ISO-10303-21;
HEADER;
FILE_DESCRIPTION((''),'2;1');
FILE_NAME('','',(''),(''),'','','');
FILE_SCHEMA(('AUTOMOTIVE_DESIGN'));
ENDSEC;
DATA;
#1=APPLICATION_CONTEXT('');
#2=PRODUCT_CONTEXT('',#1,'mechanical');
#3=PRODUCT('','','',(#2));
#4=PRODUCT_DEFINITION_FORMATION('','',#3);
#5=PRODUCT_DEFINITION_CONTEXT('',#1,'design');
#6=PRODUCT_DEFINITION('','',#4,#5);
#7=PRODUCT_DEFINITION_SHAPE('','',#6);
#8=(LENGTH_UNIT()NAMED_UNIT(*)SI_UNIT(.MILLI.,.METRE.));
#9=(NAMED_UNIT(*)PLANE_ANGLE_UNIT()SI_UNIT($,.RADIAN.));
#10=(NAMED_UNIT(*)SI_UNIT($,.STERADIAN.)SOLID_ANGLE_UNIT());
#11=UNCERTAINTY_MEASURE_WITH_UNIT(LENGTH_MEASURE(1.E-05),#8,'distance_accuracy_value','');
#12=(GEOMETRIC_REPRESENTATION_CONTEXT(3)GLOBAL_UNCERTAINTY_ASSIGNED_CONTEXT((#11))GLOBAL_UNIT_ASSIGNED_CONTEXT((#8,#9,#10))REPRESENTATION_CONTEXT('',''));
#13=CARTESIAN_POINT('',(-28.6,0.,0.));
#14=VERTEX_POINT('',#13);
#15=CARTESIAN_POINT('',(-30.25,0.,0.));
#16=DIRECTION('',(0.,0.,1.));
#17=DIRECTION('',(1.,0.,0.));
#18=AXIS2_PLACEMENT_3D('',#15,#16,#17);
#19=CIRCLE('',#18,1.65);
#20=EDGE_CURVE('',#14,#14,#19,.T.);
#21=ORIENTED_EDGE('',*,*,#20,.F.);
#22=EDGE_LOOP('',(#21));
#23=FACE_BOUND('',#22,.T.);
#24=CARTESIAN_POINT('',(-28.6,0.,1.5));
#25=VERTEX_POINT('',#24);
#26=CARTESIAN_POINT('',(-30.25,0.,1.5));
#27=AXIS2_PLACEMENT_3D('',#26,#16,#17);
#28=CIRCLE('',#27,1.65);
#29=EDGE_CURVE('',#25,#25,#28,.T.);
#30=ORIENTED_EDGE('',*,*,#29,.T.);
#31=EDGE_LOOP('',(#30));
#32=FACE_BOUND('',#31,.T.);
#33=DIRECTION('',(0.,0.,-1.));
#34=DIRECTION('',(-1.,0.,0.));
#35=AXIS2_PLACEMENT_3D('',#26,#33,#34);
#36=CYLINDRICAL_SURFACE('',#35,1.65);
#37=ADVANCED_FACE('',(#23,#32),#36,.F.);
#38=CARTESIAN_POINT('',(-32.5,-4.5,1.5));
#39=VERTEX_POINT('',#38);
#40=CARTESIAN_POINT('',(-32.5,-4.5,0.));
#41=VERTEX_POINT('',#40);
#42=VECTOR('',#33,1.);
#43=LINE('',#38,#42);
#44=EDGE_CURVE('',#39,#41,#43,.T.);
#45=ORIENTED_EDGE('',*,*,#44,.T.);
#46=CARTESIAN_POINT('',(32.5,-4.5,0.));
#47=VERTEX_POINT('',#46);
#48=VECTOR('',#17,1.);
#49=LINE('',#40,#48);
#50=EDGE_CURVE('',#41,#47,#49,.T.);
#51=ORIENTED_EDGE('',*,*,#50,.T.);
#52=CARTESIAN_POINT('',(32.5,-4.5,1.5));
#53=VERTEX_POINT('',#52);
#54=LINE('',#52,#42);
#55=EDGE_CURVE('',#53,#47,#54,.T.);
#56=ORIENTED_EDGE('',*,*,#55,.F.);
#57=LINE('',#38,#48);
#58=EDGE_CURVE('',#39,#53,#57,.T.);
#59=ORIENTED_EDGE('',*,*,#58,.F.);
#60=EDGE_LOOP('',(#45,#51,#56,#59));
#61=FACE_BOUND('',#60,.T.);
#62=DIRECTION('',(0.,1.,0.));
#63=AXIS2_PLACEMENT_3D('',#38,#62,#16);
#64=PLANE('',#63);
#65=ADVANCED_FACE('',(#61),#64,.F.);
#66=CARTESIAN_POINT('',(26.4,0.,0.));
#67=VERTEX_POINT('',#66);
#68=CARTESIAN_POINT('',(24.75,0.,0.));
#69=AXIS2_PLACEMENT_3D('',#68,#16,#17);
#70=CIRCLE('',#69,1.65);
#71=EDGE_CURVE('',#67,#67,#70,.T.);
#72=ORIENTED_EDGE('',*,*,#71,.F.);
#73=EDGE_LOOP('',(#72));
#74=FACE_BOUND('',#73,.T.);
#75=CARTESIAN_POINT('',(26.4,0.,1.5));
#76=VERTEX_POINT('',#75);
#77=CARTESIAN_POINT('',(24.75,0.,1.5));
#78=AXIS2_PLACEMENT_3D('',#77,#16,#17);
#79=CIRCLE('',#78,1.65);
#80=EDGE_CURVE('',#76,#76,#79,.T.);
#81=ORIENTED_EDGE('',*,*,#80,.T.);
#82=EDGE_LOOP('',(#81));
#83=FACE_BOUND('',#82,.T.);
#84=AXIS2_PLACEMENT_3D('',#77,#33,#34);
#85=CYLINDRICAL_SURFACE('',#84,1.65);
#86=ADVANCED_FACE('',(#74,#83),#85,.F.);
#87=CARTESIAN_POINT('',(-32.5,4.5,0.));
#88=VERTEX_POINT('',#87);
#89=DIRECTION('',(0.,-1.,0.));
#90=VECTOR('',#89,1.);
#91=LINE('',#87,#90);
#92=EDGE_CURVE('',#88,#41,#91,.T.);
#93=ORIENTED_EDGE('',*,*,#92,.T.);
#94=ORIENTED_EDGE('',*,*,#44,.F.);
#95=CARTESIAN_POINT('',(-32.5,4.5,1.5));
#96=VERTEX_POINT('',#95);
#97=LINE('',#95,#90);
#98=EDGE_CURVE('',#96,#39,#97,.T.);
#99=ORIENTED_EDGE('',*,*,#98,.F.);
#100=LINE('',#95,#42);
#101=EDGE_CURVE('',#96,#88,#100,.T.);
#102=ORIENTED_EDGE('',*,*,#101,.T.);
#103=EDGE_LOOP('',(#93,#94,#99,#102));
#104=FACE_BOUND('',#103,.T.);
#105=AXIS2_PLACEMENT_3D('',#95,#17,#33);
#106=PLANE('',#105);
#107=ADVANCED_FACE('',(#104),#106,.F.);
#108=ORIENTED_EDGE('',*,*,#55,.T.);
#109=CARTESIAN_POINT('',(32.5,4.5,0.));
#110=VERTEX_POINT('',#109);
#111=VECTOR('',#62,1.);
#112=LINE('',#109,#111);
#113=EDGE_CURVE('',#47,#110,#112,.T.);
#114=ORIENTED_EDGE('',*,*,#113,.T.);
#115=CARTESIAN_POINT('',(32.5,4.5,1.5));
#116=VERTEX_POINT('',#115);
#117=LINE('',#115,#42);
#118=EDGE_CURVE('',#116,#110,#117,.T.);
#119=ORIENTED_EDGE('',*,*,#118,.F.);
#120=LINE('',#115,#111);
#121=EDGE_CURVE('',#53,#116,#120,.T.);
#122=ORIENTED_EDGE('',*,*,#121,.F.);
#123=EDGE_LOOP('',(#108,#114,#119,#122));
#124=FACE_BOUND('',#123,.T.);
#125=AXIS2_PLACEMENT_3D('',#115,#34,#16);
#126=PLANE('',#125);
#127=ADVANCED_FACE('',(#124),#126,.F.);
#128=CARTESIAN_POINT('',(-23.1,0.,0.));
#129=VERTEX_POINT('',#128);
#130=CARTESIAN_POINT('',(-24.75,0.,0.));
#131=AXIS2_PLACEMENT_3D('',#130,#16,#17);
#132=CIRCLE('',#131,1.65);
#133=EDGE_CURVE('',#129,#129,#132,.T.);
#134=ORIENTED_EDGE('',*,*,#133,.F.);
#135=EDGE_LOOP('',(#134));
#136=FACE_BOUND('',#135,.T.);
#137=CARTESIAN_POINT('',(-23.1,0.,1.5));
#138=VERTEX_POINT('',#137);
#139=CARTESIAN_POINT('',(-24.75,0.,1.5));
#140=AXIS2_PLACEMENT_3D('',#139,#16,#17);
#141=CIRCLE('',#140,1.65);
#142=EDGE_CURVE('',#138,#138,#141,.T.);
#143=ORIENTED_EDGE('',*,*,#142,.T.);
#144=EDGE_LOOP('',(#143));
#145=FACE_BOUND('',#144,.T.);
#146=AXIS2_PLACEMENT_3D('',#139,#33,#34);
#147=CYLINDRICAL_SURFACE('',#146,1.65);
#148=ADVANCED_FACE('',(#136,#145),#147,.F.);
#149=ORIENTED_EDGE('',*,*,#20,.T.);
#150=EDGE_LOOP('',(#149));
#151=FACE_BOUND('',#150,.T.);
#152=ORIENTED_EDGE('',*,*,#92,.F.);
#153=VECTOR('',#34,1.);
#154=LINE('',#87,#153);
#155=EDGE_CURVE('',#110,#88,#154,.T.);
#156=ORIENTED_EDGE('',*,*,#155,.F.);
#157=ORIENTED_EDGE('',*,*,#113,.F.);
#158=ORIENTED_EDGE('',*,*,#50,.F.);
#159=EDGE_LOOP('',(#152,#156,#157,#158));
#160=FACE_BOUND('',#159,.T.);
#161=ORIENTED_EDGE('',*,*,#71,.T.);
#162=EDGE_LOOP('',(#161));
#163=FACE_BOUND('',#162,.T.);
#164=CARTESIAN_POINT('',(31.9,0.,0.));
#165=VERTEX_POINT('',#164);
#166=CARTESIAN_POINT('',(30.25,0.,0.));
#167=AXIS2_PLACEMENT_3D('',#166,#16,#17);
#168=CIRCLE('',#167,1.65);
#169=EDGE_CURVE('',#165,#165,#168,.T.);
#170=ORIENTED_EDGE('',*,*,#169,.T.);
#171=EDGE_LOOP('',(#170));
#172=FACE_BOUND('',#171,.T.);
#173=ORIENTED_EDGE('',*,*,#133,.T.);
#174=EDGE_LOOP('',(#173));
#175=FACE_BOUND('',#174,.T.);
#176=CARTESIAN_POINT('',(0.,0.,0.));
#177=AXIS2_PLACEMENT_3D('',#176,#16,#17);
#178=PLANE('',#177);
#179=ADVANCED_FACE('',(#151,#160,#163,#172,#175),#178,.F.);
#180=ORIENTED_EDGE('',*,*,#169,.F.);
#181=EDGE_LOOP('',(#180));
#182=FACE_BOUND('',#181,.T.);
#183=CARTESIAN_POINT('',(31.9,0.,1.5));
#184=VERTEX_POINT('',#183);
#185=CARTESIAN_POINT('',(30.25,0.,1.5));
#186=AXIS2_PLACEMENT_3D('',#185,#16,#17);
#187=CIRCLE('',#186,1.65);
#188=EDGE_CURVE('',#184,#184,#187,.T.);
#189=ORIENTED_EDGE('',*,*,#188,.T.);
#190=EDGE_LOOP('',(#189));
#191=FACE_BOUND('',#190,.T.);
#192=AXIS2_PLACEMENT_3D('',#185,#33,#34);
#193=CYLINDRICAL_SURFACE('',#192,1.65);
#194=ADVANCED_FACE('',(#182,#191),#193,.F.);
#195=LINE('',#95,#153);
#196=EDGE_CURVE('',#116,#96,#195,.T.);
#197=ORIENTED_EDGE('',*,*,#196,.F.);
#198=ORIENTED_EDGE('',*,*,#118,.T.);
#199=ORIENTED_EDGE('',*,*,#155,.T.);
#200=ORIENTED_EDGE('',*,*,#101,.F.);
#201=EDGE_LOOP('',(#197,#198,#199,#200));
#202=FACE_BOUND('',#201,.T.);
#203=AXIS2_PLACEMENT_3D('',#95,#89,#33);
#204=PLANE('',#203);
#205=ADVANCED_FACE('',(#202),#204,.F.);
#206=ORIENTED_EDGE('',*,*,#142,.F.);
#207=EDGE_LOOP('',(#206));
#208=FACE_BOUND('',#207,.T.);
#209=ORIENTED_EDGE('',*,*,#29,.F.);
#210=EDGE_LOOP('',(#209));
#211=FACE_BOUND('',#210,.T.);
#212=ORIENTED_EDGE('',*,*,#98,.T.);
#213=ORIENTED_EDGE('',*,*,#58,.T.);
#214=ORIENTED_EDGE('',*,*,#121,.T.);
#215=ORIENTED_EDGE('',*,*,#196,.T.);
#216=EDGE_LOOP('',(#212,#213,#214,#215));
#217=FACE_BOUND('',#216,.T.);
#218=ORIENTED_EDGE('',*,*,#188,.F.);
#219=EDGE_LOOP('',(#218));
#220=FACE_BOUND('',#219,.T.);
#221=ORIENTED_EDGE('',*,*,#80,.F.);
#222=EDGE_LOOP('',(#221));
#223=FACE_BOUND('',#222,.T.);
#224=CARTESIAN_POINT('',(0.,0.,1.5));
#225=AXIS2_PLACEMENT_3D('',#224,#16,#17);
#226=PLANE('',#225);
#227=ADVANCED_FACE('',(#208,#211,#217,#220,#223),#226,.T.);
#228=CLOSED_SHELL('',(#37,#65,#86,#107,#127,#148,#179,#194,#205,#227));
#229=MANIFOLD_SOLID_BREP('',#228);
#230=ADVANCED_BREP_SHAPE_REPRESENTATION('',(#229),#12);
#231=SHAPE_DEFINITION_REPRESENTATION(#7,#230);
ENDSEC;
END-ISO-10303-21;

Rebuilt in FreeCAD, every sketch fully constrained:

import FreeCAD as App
import Part
import Sketcher
from FreeCAD import Vector

doc = App.newDocument("Part")
body = doc.addObject("PartDesign::Body", "Body")

# Sketch on XY plane
sketch1 = doc.addObject("Sketcher::SketchObject", "Sketch")
body.addObject(sketch1)
sketch1.AttachmentSupport = (doc.XY_Plane, [""])
sketch1.MapMode = "FlatFace"
sketch1.addGeometry(Part.LineSegment(Vector(-32.5, 4.5, 0), Vector(-32.5, -4.5, 0)), False)
sketch1.addGeometry(Part.LineSegment(Vector(-32.5, -4.5, 0), Vector(32.5, -4.5, 0)), False)
sketch1.addGeometry(Part.LineSegment(Vector(32.5, -4.5, 0), Vector(32.5, 4.5, 0)), False)
sketch1.addGeometry(Part.LineSegment(Vector(32.5, 4.5, 0), Vector(-32.5, 4.5, 0)), False)
sketch1.addGeometry(Part.Circle(Vector(-30.2, 0, 0), Vector(0, 0, 1), 1.6), False)
sketch1.addGeometry(Part.Circle(Vector(-24.8, 0, 0), Vector(0, 0, 1), 1.6), False)
sketch1.addGeometry(Part.Circle(Vector(24.8, 0, 0), Vector(0, 0, 1), 1.6), False)
sketch1.addGeometry(Part.Circle(Vector(30.2, 0, 0), Vector(0, 0, 1), 1.6), False)
sketch1.addConstraint(Sketcher.Constraint("Coincident", 0, 2, 1, 1))
sketch1.addConstraint(Sketcher.Constraint("Coincident", 1, 2, 2, 1))
sketch1.addConstraint(Sketcher.Constraint("Coincident", 2, 2, 3, 1))
sketch1.addConstraint(Sketcher.Constraint("Coincident", 3, 2, 0, 1))
sketch1.addConstraint(Sketcher.Constraint("Vertical", 0))
sketch1.addConstraint(Sketcher.Constraint("Horizontal", 1))
sketch1.addConstraint(Sketcher.Constraint("Vertical", 2))
sketch1.addConstraint(Sketcher.Constraint("Horizontal", 3))
sketch1.addConstraint(Sketcher.Constraint("Equal", 4, 5))
sketch1.addConstraint(Sketcher.Constraint("Equal", 5, 6))
sketch1.addConstraint(Sketcher.Constraint("Equal", 6, 7))
sketch1.addConstraint(Sketcher.Constraint("Symmetric", 5, 3, 6, 3, -1, 1))
sketch1.addConstraint(Sketcher.Constraint("Symmetric", 4, 3, 7, 3, -1, 1))
sketch1.addConstraint(Sketcher.Constraint("Symmetric", 0, 2, 2, 2, -1, 1))
sketch1.addConstraint(Sketcher.Constraint("PointOnObject", 4, 3, -1))
sketch1.addConstraint(Sketcher.Constraint("PointOnObject", 5, 3, -1))
sketch1.addConstraint(Sketcher.Constraint("Diameter", 4, 3.3))
sketch1.addConstraint(Sketcher.Constraint("DistanceX", 1, 1, 1, 2, 65.0))
sketch1.addConstraint(Sketcher.Constraint("DistanceY", 0, 2, 0, 1, 9.0))
sketch1.addConstraint(Sketcher.Constraint("DistanceX", 4, 3, 6, 3, 55.0))
sketch1.addConstraint(Sketcher.Constraint("DistanceX", 4, 3, 5, 3, 5.5))
pad1 = doc.addObject("PartDesign::Pad", "Pad")
body.addObject(pad1)
pad1.Profile = sketch1
pad1.Length = 1.5

doc.recompute()
